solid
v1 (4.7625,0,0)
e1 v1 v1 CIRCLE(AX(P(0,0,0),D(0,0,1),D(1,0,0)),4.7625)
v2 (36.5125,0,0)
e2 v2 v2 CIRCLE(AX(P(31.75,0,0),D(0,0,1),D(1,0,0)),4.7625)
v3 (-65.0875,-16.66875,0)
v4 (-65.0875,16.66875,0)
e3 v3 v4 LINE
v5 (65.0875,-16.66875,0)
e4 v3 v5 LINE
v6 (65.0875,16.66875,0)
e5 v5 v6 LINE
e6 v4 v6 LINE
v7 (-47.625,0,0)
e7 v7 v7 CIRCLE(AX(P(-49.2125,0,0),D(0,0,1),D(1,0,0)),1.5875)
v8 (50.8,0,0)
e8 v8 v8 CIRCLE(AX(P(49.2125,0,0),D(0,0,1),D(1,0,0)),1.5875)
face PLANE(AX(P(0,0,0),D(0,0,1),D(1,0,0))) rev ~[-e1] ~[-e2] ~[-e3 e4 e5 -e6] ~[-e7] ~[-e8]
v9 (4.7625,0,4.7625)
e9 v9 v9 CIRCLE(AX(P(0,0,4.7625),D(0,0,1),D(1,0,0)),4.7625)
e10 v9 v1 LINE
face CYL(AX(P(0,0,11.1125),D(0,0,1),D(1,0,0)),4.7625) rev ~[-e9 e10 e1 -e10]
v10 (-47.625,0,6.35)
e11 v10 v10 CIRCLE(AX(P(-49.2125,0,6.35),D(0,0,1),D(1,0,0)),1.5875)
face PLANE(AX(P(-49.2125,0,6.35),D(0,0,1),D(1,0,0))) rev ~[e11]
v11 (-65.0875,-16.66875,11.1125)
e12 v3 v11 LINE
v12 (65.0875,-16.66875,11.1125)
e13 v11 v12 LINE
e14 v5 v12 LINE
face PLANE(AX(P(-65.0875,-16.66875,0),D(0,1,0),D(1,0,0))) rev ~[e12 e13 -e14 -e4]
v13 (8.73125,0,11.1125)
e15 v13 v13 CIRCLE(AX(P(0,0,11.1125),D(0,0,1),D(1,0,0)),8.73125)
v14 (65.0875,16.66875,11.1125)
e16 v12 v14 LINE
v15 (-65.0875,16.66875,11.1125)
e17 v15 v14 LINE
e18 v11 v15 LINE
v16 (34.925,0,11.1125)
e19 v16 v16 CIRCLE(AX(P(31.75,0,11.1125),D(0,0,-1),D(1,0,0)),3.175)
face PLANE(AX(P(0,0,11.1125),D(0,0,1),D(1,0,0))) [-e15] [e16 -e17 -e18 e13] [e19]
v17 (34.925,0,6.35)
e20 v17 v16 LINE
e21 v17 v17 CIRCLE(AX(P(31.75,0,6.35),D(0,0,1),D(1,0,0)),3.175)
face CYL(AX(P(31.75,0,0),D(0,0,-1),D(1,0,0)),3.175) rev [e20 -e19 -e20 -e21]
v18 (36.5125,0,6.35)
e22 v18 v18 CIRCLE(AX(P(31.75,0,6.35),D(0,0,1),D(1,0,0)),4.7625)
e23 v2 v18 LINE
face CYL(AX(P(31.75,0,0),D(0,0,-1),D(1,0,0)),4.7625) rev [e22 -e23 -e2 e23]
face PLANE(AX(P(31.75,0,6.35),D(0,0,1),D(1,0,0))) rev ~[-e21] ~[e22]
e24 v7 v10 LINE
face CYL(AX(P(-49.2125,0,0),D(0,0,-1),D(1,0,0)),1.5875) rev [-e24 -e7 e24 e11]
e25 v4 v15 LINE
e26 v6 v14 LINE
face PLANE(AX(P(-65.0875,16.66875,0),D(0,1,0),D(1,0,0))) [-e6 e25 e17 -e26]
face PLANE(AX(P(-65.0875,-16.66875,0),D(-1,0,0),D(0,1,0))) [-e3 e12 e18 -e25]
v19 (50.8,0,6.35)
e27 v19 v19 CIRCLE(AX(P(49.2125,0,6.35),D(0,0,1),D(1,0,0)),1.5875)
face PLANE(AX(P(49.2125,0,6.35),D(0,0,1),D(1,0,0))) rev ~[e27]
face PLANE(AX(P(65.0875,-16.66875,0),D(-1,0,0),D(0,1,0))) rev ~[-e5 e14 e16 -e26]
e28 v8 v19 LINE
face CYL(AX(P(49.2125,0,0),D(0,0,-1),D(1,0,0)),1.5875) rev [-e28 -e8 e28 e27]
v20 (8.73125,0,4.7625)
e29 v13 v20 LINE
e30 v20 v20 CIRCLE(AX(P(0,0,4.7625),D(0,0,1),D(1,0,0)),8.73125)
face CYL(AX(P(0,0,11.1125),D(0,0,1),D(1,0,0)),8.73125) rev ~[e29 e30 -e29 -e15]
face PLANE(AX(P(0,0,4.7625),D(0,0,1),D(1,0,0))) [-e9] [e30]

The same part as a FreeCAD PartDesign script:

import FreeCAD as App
import Part
import Sketcher
from FreeCAD import Vector
Q = App.Units.Quantity


def add_polygon(sketch, points):
    """Adds a closed chain of lines whose ends are joined by coincident constraints."""
    first, n = sketch.GeometryCount, len(points)
    for a, b in zip(points, points[1:] + points[:1]):
        sketch.addGeometry(Part.LineSegment(App.Vector(*a, 0), App.Vector(*b, 0)), False)
    for i in range(n):
        sketch.addConstraint(Sketcher.Constraint("Coincident", first + i, 2, first + (i + 1) % n, 1))

doc = App.newDocument("Part")
body = doc.addObject("PartDesign::Body", "Body")

# Sketch on XY plane
sketch1 = doc.addObject("Sketcher::SketchObject", "Sketch")
body.addObject(sketch1)
sketch1.AttachmentSupport = (doc.XY_Plane, [""])
sketch1.MapMode = "FlatFace"
add_polygon(sketch1, [(-65.0875, 16.66875), (-65.0875, -16.66875), (65.0875, -16.66875), (65.0875, 16.66875)])  # lines 0-3
sketch1.addConstraint(Sketcher.Constraint("Vertical", 0))
sketch1.addConstraint(Sketcher.Constraint("Horizontal", 1))
sketch1.addConstraint(Sketcher.Constraint("Vertical", 2))
sketch1.addConstraint(Sketcher.Constraint("Horizontal", 3))
sketch1.addConstraint(Sketcher.Constraint("Symmetric", 0, 2, 2, 2, -1, 1))
sketch1.addConstraint(Sketcher.Constraint("DistanceX", 1, 1, 1, 2, Q("5.125 in")))
sketch1.addConstraint(Sketcher.Constraint("DistanceY", 0, 2, 0, 1, Q("1.3125 in")))
pad1 = doc.addObject("PartDesign::Pad", "Pad")
body.addObject(pad1)
pad1.Profile = sketch1
pad1.Length = Q("0.4375 in")

# Sketch on XY plane
sketch2 = doc.addObject("Sketcher::SketchObject", "Sketch001")
body.addObject(sketch2)
sketch2.AttachmentSupport = (doc.XY_Plane, [""])
sketch2.MapMode = "FlatFace"
sketch2.AttachmentOffset = App.Placement(Vector(0, 0, 0.4375 * 25.4), App.Rotation())
sketch2.addGeometry(Part.Circle(Vector(0, 0, 0), Vector(0, 0, 1), 8.73125), False)
sketch2.addGeometry(Part.Circle(Vector(0, 0, 0), Vector(0, 0, 1), 4.7625), False)
sketch2.addConstraint(Sketcher.Constraint("Coincident", 0, 3, -1, 1))
sketch2.addConstraint(Sketcher.Constraint("Coincident", 1, 3, -1, 1))
sketch2.addConstraint(Sketcher.Constraint("Diameter", 0, Q("0.6875 in")))
sketch2.addConstraint(Sketcher.Constraint("Diameter", 1, Q("0.375 in")))
pocket1 = doc.addObject("PartDesign::Pocket", "Pocket")
body.addObject(pocket1)
pocket1.Profile = sketch2
pocket1.Length = Q("0.25 in")

# Sketch on XY plane
sketch3 = doc.addObject("Sketcher::SketchObject", "Sketch002")
body.addObject(sketch3)
sketch3.AttachmentSupport = (doc.XY_Plane, [""])
sketch3.MapMode = "FlatFace"
sketch3.AttachmentOffset = App.Placement(Vector(0, 0, 0.4375 * 25.4), App.Rotation())
sketch3.addGeometry(Part.Circle(Vector(0, 0, 0), Vector(0, 0, 1), 4.7625), False)
sketch3.addConstraint(Sketcher.Constraint("Coincident", 0, 3, -1, 1))
sketch3.addConstraint(Sketcher.Constraint("Diameter", 0, Q("0.375 in")))
pocket2 = doc.addObject("PartDesign::Pocket", "Pocket001")
body.addObject(pocket2)
pocket2.Profile = sketch3
pocket2.Type = "ThroughAll"

# Sketch on XY plane
sketch4 = doc.addObject("Sketcher::SketchObject", "Sketch003")
body.addObject(sketch4)
sketch4.AttachmentSupport = (doc.XY_Plane, [""])
sketch4.MapMode = "FlatFace"
sketch4.addGeometry(Part.Circle(Vector(-49.2125, 0, 0), Vector(0, 0, 1), 1.5875), False)
sketch4.addGeometry(Part.Circle(Vector(49.2125, 0, 0), Vector(0, 0, 1), 1.5875), False)
sketch4.addConstraint(Sketcher.Constraint("Equal", 0, 1))
sketch4.addConstraint(Sketcher.Constraint("Symmetric", 0, 3, 1, 3, -1, 1))
sketch4.addConstraint(Sketcher.Constraint("PointOnObject", 0, 3, -1))
sketch4.addConstraint(Sketcher.Constraint("Diameter", 0, Q("0.125 in")))
sketch4.addConstraint(Sketcher.Constraint("DistanceX", 0, 3, -1, 1, Q("1.9375 in")))
pocket3 = doc.addObject("PartDesign::Pocket", "Pocket002")
body.addObject(pocket3)
pocket3.Profile = sketch4
pocket3.Length = Q("0.25 in")
pocket3.Reversed = True

# Sketch on XY plane
sketch5 = doc.addObject("Sketcher::SketchObject", "Sketch004")
body.addObject(sketch5)
sketch5.AttachmentSupport = (doc.XY_Plane, [""])
sketch5.MapMode = "FlatFace"
sketch5.addGeometry(Part.Circle(Vector(31.75, 0, 0), Vector(0, 0, 1), 3.175), False)
sketch5.addConstraint(Sketcher.Constraint("PointOnObject", 0, 3, -1))
sketch5.addConstraint(Sketcher.Constraint("Diameter", 0, Q("0.25 in")))
sketch5.addConstraint(Sketcher.Constraint("DistanceX", -1, 1, 0, 3, Q("1.25 in")))
pocket4 = doc.addObject("PartDesign::Pocket", "Pocket003")
body.addObject(pocket4)
pocket4.Profile = sketch5
pocket4.Type = "ThroughAll"
pocket4.Reversed = True

# Sketch on XY plane
sketch6 = doc.addObject("Sketcher::SketchObject", "Sketch005")
body.addObject(sketch6)
sketch6.AttachmentSupport = (doc.XY_Plane, [""])
sketch6.MapMode = "FlatFace"
sketch6.addGeometry(Part.Circle(Vector(31.75, 0, 0), Vector(0, 0, 1), 4.7625), False)
sketch6.addGeometry(Part.Circle(Vector(31.75, 0, 0), Vector(0, 0, 1), 3.175), False)
sketch6.addConstraint(Sketcher.Constraint("Coincident", 1, 3, 0, 3))
sketch6.addConstraint(Sketcher.Constraint("PointOnObject", 0, 3, -1))
sketch6.addConstraint(Sketcher.Constraint("Diameter", 1, Q("0.25 in")))
sketch6.addConstraint(Sketcher.Constraint("Diameter", 0, Q("0.375 in")))
sketch6.addConstraint(Sketcher.Constraint("DistanceX", -1, 1, 0, 3, Q("1.25 in")))
pocket5 = doc.addObject("PartDesign::Pocket", "Pocket004")
body.addObject(pocket5)
pocket5.Profile = sketch6
pocket5.Length = Q("0.25 in")
pocket5.Reversed = True

doc.recompute()
